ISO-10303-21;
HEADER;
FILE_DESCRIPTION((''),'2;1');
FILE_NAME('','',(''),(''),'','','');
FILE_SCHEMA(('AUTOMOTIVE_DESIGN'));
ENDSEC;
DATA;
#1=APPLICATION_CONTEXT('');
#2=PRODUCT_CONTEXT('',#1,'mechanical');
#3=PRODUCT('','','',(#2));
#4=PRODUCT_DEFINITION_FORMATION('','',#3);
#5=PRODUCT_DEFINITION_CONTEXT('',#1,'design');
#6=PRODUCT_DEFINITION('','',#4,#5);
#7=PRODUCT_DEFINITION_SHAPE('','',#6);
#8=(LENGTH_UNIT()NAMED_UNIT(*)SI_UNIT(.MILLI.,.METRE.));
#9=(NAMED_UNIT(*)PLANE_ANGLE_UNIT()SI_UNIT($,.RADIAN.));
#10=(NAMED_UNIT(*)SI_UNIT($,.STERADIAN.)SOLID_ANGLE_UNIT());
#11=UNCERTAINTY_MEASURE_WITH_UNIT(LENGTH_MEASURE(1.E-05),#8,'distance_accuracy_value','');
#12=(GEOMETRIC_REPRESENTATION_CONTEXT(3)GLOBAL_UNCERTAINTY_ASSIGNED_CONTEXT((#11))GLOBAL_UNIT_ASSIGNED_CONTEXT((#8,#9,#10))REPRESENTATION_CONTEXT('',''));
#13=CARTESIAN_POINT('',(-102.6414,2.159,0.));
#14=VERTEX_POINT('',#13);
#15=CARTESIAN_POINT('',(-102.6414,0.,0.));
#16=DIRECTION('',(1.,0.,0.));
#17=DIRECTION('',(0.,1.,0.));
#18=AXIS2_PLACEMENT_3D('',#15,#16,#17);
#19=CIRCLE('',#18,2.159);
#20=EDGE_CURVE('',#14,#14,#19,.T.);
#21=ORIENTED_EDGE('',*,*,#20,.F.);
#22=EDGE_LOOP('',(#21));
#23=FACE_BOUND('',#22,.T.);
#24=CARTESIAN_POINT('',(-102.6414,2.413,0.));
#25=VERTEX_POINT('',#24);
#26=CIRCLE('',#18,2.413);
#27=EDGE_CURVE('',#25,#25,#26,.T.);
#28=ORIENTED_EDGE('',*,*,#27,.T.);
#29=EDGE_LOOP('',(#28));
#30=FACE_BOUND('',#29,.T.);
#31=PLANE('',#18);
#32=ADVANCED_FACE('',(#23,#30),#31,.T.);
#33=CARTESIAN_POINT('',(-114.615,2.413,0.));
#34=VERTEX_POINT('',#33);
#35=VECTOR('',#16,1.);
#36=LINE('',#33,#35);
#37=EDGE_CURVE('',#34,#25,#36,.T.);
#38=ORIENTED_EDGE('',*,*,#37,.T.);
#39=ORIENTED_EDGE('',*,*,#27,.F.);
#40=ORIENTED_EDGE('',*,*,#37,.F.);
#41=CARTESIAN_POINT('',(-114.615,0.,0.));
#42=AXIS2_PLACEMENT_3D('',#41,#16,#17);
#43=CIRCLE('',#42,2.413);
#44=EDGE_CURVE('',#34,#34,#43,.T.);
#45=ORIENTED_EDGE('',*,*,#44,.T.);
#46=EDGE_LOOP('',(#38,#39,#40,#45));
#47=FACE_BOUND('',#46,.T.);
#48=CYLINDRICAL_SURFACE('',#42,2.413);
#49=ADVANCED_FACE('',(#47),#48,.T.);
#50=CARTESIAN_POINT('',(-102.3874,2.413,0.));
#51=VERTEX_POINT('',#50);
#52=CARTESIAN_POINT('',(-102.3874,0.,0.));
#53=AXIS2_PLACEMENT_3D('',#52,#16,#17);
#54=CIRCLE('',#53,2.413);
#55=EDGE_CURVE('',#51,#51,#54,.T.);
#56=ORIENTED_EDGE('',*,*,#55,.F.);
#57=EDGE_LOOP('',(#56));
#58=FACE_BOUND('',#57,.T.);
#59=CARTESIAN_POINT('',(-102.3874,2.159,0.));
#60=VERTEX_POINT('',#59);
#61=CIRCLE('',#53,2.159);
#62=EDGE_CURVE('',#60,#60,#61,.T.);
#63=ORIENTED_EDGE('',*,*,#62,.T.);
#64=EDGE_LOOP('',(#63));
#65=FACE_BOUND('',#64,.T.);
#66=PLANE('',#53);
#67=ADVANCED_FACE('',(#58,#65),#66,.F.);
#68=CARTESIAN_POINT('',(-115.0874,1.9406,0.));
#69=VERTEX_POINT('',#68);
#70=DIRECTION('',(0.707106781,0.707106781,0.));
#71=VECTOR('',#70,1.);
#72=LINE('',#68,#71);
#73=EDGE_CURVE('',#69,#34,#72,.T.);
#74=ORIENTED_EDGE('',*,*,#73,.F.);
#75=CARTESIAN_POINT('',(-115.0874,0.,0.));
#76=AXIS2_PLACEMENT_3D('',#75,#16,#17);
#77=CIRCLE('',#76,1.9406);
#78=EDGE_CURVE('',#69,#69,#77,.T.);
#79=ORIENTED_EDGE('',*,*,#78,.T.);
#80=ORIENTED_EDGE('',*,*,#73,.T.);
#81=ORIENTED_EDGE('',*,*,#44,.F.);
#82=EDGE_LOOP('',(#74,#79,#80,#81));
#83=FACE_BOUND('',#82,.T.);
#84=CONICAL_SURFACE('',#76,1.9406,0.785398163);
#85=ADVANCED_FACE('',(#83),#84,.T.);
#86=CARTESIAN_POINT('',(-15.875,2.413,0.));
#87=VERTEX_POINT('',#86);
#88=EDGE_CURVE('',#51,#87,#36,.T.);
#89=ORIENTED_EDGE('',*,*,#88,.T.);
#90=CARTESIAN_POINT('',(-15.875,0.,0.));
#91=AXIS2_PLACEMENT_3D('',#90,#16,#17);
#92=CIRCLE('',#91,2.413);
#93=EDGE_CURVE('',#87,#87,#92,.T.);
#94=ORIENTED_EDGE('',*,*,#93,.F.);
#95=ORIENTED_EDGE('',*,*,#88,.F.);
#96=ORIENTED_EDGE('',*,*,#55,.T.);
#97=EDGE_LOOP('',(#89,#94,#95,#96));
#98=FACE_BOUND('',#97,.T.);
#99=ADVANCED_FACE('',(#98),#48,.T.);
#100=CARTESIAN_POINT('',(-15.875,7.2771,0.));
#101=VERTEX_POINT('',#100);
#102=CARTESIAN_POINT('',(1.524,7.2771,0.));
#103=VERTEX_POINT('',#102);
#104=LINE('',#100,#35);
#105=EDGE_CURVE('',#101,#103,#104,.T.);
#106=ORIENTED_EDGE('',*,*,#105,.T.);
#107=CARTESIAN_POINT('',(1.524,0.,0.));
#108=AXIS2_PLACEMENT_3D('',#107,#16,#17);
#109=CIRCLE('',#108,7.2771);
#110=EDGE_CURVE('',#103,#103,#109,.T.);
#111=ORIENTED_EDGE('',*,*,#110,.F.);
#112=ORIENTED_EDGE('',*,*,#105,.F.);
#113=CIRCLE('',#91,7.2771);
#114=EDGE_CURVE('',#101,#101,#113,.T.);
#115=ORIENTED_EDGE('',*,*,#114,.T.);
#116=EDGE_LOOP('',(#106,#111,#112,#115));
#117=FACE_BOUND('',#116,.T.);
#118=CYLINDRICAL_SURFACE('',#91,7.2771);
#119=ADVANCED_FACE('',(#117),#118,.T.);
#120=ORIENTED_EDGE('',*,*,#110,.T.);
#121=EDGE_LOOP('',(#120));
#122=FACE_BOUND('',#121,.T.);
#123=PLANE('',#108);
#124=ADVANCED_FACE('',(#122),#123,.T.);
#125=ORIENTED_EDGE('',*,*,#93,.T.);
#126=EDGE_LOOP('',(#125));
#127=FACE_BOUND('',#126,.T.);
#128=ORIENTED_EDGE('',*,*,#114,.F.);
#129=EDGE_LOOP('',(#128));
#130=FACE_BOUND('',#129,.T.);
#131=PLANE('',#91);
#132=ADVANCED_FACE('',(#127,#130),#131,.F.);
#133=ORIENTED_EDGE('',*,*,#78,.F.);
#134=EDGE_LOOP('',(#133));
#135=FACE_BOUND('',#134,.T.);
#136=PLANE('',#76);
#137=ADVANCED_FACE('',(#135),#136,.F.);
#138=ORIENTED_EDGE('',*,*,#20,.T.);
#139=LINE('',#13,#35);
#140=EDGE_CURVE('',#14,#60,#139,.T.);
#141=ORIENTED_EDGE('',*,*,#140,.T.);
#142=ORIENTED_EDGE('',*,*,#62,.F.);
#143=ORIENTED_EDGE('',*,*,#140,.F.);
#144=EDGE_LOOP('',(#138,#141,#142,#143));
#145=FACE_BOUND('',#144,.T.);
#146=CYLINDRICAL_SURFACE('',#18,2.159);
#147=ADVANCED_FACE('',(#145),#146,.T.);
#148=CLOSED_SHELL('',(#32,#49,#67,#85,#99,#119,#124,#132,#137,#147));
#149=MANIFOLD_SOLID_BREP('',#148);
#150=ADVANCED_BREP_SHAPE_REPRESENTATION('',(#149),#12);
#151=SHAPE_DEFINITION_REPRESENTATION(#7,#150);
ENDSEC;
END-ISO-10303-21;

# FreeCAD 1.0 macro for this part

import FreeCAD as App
import Part
import Sketcher
Q = App.Units.Quantity

doc = App.newDocument("Part")
body = doc.addObject("PartDesign::Body", "Body")

sketch1 = body.newObject("Sketcher::SketchObject", "Sketch")
sketch1.AttachmentSupport = (doc.getObject("XY_Plane"), [""])
sketch1.MapMode = "FlatFace"
sketch1.addGeometry(Part.LineSegment(App.Vector(-115.0874, 0, 0), App.Vector(0, 0, 0)), False)
sketch1.addGeometry(Part.LineSegment(App.Vector(0, 0, 0), App.Vector(0, 2.413, 0)), False)
sketch1.addGeometry(Part.LineSegment(App.Vector(0, 2.413, 0), App.Vector(-114.615, 2.413, 0)), False)
sketch1.addGeometry(Part.LineSegment(App.Vector(-114.615, 2.413, 0), App.Vector(-115.0874, 1.9406, 0)), False)
sketch1.addGeometry(Part.LineSegment(App.Vector(-115.0874, 1.9406, 0), App.Vector(-115.0874, 0, 0)), False)
sketch1.addConstraint(Sketcher.Constraint("Coincident", 0, 2, 1, 1))
sketch1.addConstraint(Sketcher.Constraint("Coincident", 1, 2, 2, 1))
sketch1.addConstraint(Sketcher.Constraint("Coincident", 2, 2, 3, 1))
sketch1.addConstraint(Sketcher.Constraint("Coincident", 3, 2, 4, 1))
sketch1.addConstraint(Sketcher.Constraint("Coincident", 4, 2, 0, 1))
sketch1.addConstraint(Sketcher.Constraint("Horizontal", 0))
sketch1.addConstraint(Sketcher.Constraint("Vertical", 1))
sketch1.addConstraint(Sketcher.Constraint("Horizontal", 2))
sketch1.addConstraint(Sketcher.Constraint("Vertical", 4))
sketch1.addConstraint(Sketcher.Constraint("Coincident", 0, 2, -1, 1))
sketch1.addConstraint(Sketcher.Constraint("Angle", 3, Q("-135 deg")))
sketch1.addConstraint(Sketcher.Constraint("DistanceX", 0, 1, 0, 2, Q("4.531 in")))
sketch1.addConstraint(Sketcher.Constraint("DistanceY", 1, 1, 1, 2, Q("0.095 in")))
sketch1.addConstraint(Sketcher.Constraint("DistanceX", 2, 2, 2, 1, Q("4.5124 in")))
revolution = body.newObject("PartDesign::Revolution", "Revolution")
revolution.Profile = sketch1
revolution.ReferenceAxis = (sketch1, ["H_Axis"])
revolution.Angle = 360

sketch2 = body.newObject("Sketcher::SketchObject", "Sketch001")
sketch2.AttachmentSupport = (doc.getObject("XY_Plane"), [""])
sketch2.MapMode = "FlatFace"
sketch2.addGeometry(Part.LineSegment(App.Vector(-102.3874, 2.413, 0), App.Vector(-102.6414, 2.413, 0)), False)
sketch2.addGeometry(Part.LineSegment(App.Vector(-102.6414, 2.413, 0), App.Vector(-102.6414, 2.159, 0)), False)
sketch2.addGeometry(Part.LineSegment(App.Vector(-102.6414, 2.159, 0), App.Vector(-102.3874, 2.159, 0)), False)
sketch2.addGeometry(Part.LineSegment(App.Vector(-102.3874, 2.159, 0), App.Vector(-102.3874, 2.413, 0)), False)
sketch2.addConstraint(Sketcher.Constraint("Coincident", 0, 2, 1, 1))
sketch2.addConstraint(Sketcher.Constraint("Coincident", 1, 2, 2, 1))
sketch2.addConstraint(Sketcher.Constraint("Coincident", 2, 2, 3, 1))
sketch2.addConstraint(Sketcher.Constraint("Coincident", 3, 2, 0, 1))
sketch2.addConstraint(Sketcher.Constraint("Horizontal", 0))
sketch2.addConstraint(Sketcher.Constraint("Vertical", 1))
sketch2.addConstraint(Sketcher.Constraint("Horizontal", 2))
sketch2.addConstraint(Sketcher.Constraint("Vertical", 3))
sketch2.addConstraint(Sketcher.Constraint("Equal", 2, 1))
sketch2.addConstraint(Sketcher.Constraint("DistanceX", 0, 2, 0, 1, Q("0.01 in")))
sketch2.addConstraint(Sketcher.Constraint("DistanceX", 0, 2, -1, 1, Q("4.041 in")))
sketch2.addConstraint(Sketcher.Constraint("DistanceY", -1, 1, 0, 2, Q("0.095 in")))
groove = body.newObject("PartDesign::Groove", "Groove")
groove.Profile = sketch2
groove.ReferenceAxis = (sketch2, ["H_Axis"])
groove.Angle = 360

sketch3 = body.newObject("Sketcher::SketchObject", "Sketch002")
sketch3.AttachmentSupport = (doc.getObject("XY_Plane"), [""])
sketch3.MapMode = "FlatFace"
sketch3.addGeometry(Part.LineSegment(App.Vector(-15.875, 0, 0), App.Vector(1.524, 0, 0)), False)
sketch3.addGeometry(Part.LineSegment(App.Vector(1.524, 0, 0), App.Vector(1.524, 7.2771, 0)), False)
sketch3.addGeometry(Part.LineSegment(App.Vector(1.524, 7.2771, 0), App.Vector(-15.875, 7.2771, 0)), False)
sketch3.addGeometry(Part.LineSegment(App.Vector(-15.875, 7.2771, 0), App.Vector(-15.875, 0, 0)), False)
sketch3.addConstraint(Sketcher.Constraint("Coincident", 0, 2, 1, 1))
sketch3.addConstraint(Sketcher.Constraint("Coincident", 1, 2, 2, 1))
sketch3.addConstraint(Sketcher.Constraint("Coincident", 2, 2, 3, 1))
sketch3.addConstraint(Sketcher.Constraint("Coincident", 3, 2, 0, 1))
sketch3.addConstraint(Sketcher.Constraint("Horizontal", 0))
sketch3.addConstraint(Sketcher.Constraint("Vertical", 1))
sketch3.addConstraint(Sketcher.Constraint("Horizontal", 2))
sketch3.addConstraint(Sketcher.Constraint("Vertical", 3))
sketch3.addConstraint(Sketcher.Constraint("PointOnObject", 0, 2, -1))
sketch3.addConstraint(Sketcher.Constraint("DistanceX", 0, 1, 0, 2, Q("0.685 in")))
sketch3.addConstraint(Sketcher.Constraint("DistanceX", -1, 1, 0, 2, Q("0.06 in")))
sketch3.addConstraint(Sketcher.Constraint("DistanceY", 1, 1, 1, 2, Q("0.2865 in")))
revolution2 = body.newObject("PartDesign::Revolution", "Revolution001")
revolution2.Profile = sketch3
revolution2.ReferenceAxis = (sketch3, ["H_Axis"])
revolution2.Angle = 360

doc.recompute()
